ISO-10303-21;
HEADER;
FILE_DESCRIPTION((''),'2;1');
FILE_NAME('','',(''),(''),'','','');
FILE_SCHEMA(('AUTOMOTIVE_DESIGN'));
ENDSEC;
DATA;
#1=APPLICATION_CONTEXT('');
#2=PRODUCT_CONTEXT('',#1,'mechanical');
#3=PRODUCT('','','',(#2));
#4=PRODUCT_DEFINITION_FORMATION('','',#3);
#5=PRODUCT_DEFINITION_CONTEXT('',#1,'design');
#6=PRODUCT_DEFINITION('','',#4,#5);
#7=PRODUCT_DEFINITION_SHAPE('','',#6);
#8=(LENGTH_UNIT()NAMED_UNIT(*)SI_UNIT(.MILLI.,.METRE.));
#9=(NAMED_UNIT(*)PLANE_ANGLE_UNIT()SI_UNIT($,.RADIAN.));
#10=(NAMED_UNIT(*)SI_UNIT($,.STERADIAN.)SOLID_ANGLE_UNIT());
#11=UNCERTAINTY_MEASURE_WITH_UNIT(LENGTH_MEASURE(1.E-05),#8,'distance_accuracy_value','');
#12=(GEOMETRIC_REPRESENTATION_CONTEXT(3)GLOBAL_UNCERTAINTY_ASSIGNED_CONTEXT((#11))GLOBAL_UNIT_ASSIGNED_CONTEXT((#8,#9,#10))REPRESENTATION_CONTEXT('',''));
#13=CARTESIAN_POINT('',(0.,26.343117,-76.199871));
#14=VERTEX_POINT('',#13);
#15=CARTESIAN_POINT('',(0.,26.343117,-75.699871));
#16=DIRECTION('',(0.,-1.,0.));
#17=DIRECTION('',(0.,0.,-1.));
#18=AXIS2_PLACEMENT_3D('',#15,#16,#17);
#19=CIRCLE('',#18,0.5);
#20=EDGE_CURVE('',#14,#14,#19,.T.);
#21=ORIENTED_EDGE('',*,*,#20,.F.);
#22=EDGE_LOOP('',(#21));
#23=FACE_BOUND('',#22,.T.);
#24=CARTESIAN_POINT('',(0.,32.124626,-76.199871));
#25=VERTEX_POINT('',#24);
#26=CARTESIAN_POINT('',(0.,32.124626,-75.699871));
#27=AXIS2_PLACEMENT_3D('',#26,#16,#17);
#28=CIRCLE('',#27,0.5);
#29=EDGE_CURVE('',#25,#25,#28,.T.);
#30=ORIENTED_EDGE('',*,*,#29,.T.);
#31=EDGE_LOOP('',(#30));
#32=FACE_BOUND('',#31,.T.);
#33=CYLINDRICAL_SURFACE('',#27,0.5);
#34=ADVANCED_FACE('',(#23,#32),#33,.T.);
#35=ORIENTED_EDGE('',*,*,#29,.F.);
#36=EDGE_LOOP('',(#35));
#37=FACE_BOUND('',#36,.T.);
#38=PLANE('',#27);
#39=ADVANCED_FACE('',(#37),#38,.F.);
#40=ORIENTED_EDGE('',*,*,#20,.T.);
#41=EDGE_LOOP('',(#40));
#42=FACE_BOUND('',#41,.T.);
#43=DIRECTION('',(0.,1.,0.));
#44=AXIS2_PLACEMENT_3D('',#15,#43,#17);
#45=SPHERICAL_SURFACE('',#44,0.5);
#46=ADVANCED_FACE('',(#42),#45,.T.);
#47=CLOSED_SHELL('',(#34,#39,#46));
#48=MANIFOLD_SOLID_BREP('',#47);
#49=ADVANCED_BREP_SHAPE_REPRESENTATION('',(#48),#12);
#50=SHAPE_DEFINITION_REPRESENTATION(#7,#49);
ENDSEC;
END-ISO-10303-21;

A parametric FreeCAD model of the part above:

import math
import FreeCAD as App
import Part
import Sketcher

V = App.Vector
Q = App.Units.Quantity

doc = App.newDocument("Part")
params = doc.addObject("Spreadsheet::Sheet", "Params")
for row, (alias, value) in enumerate([
    ("sketch1_diameter", "1 mm"),
    ("sketch3_radius", "0.5 mm"),
    ("revolution_angle", "360 deg"),
], start=1):
    params.set(f"A{row}", alias)
    params.set(f"B{row}", "=" + value)
    params.setAlias(f"B{row}", alias)

body = doc.addObject("PartDesign::Body", "Body")

# Sketch on XZ plane
sketch1 = doc.addObject("Sketcher::SketchObject", "Sketch")
body.addObject(sketch1)
sketch1.AttachmentSupport = (doc.XZ_Plane, [""])
sketch1.MapMode = "FlatFace"
sketch1.AttachmentOffset = App.Placement(V(0, 0, -32.124626), App.Rotation())
sketch1.addGeometry(Part.Circle(V(0, -75.7, 0), V(0, 0, 1), 0.5), False)
sketch1.addConstraint(Sketcher.Constraint("PointOnObject", 0, 3, -2))
sketch1.addConstraint(Sketcher.Constraint("Diameter", 0, Q("1 mm")))
sketch1.addConstraint(Sketcher.Constraint("DistanceY", 0, 3, -1, 1, Q("75.699871 mm")))
sketch1.setExpression("Constraints[1]", "Params.sketch1_diameter")

# Sketch on XY plane
sketch2 = doc.addObject("Sketcher::SketchObject", "Sketch001")
body.addObject(sketch2)
sketch2.AttachmentSupport = (doc.XY_Plane, [""])
sketch2.MapMode = "FlatFace"
sketch2.AttachmentOffset = App.Placement(V(0, 0, -75.699871), App.Rotation())
sketch2.addGeometry(Part.LineSegment(V(0, 32, 0), V(0, 26, 0)), False)
sketch2.addConstraint(Sketcher.Constraint("Vertical", 0))
sketch2.addConstraint(Sketcher.Constraint("PointOnObject", 0, 1, -2))
sketch2.addConstraint(Sketcher.Constraint("DistanceY", 0, 2, 0, 1, Q("5.781509 mm")))
sketch2.addConstraint(Sketcher.Constraint("DistanceY", -1, 1, 0, 1, Q("32.124626 mm")))
doc.recompute()

additivepipe = doc.addObject("PartDesign::AdditivePipe", "AdditivePipe")
body.addObject(additivepipe)
additivepipe.Profile = sketch1
additivepipe.Spine = (sketch2, ["Edge1"])

# Sketch on YZ plane
sketch3 = doc.addObject("Sketcher::SketchObject", "Sketch002")
body.addObject(sketch3)
sketch3.AttachmentSupport = (doc.YZ_Plane, [""])
sketch3.MapMode = "FlatFace"
sketch3.addGeometry(Part.LineSegment(V(25.8, -75.7, 0), V(26.8, -75.7, 0)), False)
sketch3.addGeometry(Part.ArcOfCircle(Part.Circle(V(26.3, -75.7, 0), V(0, 0, 1), 0.5), math.radians(0), math.radians(180)), False)
sketch3.addGeometry(Part.LineSegment(V(26.8, -75.7, 0), V(25.8, -75.7, 0)), True)  # axis
sketch3.addConstraint(Sketcher.Constraint("Coincident", 0, 1, 1, 2))
sketch3.addConstraint(Sketcher.Constraint("Coincident", 1, 1, 0, 2))
sketch3.addConstraint(Sketcher.Constraint("Horizontal", 0))
sketch3.addConstraint(Sketcher.Constraint("Horizontal", 2))
sketch3.addConstraint(Sketcher.Constraint("Coincident", 2, 1, 1, 1))
sketch3.addConstraint(Sketcher.Constraint("Horizontal", 1, 3, 0, 1))
sketch3.addConstraint(Sketcher.Constraint("Equal", 0, 2))
sketch3.addConstraint(Sketcher.Constraint("Radius", 1, Q("0.5 mm")))
sketch3.addConstraint(Sketcher.Constraint("DistanceY", 1, 3, -1, 1, Q("75.699871 mm")))
sketch3.addConstraint(Sketcher.Constraint("DistanceX", -1, 1, 1, 3, Q("26.343117 mm")))
sketch3.setExpression("Constraints[7]", "Params.sketch3_radius")
revolution = doc.addObject("PartDesign::Revolution", "Revolution")
body.addObject(revolution)
revolution.Profile = sketch3
revolution.ReferenceAxis = (sketch3, ["Axis0"])
revolution.setExpression("Angle", "Params.revolution_angle")

doc.recompute()
